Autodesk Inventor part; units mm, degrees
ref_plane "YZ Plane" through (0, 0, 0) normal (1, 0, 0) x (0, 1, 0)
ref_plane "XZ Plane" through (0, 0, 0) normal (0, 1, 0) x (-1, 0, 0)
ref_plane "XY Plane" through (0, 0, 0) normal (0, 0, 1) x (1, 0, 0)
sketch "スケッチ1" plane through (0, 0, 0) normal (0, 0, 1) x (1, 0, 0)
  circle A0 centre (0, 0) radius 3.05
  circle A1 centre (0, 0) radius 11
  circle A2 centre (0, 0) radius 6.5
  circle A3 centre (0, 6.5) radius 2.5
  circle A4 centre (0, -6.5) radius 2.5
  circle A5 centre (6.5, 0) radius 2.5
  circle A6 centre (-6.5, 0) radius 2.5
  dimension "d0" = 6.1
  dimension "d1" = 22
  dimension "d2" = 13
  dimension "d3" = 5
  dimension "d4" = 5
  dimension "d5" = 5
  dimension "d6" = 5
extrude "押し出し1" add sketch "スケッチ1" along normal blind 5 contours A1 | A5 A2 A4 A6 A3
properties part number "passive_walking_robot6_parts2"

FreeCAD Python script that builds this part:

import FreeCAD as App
import Part
import Sketcher

doc = App.newDocument("Part")
body = doc.addObject("PartDesign::Body", "Body")

# Sketch on XY plane
sketch1 = doc.addObject("Sketcher::SketchObject", "Sketch")
body.addObject(sketch1)
sketch1.AttachmentSupport = (doc.XY_Plane, [""])
sketch1.MapMode = "FlatFace"
sketch1.addGeometry(Part.Circle(App.Vector(0, 0, 0), App.Vector(0, 0, 1), 11), False)
sketch1.addGeometry(Part.Circle(App.Vector(0, 6.5, 0), App.Vector(0, 0, 1), 2.5), False)
sketch1.addGeometry(Part.Circle(App.Vector(-6.5, 0, 0), App.Vector(0, 0, 1), 2.5), False)
sketch1.addGeometry(Part.Circle(App.Vector(0, -6.5, 0), App.Vector(0, 0, 1), 2.5), False)
sketch1.addGeometry(Part.Circle(App.Vector(6.5, 0, 0), App.Vector(0, 0, 1), 2.5), False)
sketch1.addGeometry(Part.Circle(App.Vector(0, 0, 0), App.Vector(0, 0, 1), 3), False)
sketch1.addConstraint(Sketcher.Constraint("Coincident", 0, 3, -1, 1))
sketch1.addConstraint(Sketcher.Constraint("Coincident", 5, 3, -1, 1))
sketch1.addConstraint(Sketcher.Constraint("Equal", 1, 2))
sketch1.addConstraint(Sketcher.Constraint("Equal", 2, 3))
sketch1.addConstraint(Sketcher.Constraint("Equal", 3, 4))
sketch1.addConstraint(Sketcher.Constraint("Symmetric", 1, 3, 3, 3, -1, 1))
sketch1.addConstraint(Sketcher.Constraint("Symmetric", 2, 3, 4, 3, -1, 1))
sketch1.addConstraint(Sketcher.Constraint("PointOnObject", 1, 3, -2))
sketch1.addConstraint(Sketcher.Constraint("PointOnObject", 2, 3, -1))
sketch1.addConstraint(Sketcher.Constraint("Diameter", 0, 22.0))
sketch1.addConstraint(Sketcher.Constraint("Diameter", 1, 5.0))
sketch1.addConstraint(Sketcher.Constraint("Diameter", 5, 6.1))
sketch1.addConstraint(Sketcher.Constraint("DistanceY", 3, 3, 1, 3, 13.0))
sketch1.addConstraint(Sketcher.Constraint("DistanceX", 2, 3, 4, 3, 13.0))
pad1 = doc.addObject("PartDesign::Pad", "Pad")
body.addObject(pad1)
pad1.Profile = sketch1
pad1.Length = 5

doc.recompute()
